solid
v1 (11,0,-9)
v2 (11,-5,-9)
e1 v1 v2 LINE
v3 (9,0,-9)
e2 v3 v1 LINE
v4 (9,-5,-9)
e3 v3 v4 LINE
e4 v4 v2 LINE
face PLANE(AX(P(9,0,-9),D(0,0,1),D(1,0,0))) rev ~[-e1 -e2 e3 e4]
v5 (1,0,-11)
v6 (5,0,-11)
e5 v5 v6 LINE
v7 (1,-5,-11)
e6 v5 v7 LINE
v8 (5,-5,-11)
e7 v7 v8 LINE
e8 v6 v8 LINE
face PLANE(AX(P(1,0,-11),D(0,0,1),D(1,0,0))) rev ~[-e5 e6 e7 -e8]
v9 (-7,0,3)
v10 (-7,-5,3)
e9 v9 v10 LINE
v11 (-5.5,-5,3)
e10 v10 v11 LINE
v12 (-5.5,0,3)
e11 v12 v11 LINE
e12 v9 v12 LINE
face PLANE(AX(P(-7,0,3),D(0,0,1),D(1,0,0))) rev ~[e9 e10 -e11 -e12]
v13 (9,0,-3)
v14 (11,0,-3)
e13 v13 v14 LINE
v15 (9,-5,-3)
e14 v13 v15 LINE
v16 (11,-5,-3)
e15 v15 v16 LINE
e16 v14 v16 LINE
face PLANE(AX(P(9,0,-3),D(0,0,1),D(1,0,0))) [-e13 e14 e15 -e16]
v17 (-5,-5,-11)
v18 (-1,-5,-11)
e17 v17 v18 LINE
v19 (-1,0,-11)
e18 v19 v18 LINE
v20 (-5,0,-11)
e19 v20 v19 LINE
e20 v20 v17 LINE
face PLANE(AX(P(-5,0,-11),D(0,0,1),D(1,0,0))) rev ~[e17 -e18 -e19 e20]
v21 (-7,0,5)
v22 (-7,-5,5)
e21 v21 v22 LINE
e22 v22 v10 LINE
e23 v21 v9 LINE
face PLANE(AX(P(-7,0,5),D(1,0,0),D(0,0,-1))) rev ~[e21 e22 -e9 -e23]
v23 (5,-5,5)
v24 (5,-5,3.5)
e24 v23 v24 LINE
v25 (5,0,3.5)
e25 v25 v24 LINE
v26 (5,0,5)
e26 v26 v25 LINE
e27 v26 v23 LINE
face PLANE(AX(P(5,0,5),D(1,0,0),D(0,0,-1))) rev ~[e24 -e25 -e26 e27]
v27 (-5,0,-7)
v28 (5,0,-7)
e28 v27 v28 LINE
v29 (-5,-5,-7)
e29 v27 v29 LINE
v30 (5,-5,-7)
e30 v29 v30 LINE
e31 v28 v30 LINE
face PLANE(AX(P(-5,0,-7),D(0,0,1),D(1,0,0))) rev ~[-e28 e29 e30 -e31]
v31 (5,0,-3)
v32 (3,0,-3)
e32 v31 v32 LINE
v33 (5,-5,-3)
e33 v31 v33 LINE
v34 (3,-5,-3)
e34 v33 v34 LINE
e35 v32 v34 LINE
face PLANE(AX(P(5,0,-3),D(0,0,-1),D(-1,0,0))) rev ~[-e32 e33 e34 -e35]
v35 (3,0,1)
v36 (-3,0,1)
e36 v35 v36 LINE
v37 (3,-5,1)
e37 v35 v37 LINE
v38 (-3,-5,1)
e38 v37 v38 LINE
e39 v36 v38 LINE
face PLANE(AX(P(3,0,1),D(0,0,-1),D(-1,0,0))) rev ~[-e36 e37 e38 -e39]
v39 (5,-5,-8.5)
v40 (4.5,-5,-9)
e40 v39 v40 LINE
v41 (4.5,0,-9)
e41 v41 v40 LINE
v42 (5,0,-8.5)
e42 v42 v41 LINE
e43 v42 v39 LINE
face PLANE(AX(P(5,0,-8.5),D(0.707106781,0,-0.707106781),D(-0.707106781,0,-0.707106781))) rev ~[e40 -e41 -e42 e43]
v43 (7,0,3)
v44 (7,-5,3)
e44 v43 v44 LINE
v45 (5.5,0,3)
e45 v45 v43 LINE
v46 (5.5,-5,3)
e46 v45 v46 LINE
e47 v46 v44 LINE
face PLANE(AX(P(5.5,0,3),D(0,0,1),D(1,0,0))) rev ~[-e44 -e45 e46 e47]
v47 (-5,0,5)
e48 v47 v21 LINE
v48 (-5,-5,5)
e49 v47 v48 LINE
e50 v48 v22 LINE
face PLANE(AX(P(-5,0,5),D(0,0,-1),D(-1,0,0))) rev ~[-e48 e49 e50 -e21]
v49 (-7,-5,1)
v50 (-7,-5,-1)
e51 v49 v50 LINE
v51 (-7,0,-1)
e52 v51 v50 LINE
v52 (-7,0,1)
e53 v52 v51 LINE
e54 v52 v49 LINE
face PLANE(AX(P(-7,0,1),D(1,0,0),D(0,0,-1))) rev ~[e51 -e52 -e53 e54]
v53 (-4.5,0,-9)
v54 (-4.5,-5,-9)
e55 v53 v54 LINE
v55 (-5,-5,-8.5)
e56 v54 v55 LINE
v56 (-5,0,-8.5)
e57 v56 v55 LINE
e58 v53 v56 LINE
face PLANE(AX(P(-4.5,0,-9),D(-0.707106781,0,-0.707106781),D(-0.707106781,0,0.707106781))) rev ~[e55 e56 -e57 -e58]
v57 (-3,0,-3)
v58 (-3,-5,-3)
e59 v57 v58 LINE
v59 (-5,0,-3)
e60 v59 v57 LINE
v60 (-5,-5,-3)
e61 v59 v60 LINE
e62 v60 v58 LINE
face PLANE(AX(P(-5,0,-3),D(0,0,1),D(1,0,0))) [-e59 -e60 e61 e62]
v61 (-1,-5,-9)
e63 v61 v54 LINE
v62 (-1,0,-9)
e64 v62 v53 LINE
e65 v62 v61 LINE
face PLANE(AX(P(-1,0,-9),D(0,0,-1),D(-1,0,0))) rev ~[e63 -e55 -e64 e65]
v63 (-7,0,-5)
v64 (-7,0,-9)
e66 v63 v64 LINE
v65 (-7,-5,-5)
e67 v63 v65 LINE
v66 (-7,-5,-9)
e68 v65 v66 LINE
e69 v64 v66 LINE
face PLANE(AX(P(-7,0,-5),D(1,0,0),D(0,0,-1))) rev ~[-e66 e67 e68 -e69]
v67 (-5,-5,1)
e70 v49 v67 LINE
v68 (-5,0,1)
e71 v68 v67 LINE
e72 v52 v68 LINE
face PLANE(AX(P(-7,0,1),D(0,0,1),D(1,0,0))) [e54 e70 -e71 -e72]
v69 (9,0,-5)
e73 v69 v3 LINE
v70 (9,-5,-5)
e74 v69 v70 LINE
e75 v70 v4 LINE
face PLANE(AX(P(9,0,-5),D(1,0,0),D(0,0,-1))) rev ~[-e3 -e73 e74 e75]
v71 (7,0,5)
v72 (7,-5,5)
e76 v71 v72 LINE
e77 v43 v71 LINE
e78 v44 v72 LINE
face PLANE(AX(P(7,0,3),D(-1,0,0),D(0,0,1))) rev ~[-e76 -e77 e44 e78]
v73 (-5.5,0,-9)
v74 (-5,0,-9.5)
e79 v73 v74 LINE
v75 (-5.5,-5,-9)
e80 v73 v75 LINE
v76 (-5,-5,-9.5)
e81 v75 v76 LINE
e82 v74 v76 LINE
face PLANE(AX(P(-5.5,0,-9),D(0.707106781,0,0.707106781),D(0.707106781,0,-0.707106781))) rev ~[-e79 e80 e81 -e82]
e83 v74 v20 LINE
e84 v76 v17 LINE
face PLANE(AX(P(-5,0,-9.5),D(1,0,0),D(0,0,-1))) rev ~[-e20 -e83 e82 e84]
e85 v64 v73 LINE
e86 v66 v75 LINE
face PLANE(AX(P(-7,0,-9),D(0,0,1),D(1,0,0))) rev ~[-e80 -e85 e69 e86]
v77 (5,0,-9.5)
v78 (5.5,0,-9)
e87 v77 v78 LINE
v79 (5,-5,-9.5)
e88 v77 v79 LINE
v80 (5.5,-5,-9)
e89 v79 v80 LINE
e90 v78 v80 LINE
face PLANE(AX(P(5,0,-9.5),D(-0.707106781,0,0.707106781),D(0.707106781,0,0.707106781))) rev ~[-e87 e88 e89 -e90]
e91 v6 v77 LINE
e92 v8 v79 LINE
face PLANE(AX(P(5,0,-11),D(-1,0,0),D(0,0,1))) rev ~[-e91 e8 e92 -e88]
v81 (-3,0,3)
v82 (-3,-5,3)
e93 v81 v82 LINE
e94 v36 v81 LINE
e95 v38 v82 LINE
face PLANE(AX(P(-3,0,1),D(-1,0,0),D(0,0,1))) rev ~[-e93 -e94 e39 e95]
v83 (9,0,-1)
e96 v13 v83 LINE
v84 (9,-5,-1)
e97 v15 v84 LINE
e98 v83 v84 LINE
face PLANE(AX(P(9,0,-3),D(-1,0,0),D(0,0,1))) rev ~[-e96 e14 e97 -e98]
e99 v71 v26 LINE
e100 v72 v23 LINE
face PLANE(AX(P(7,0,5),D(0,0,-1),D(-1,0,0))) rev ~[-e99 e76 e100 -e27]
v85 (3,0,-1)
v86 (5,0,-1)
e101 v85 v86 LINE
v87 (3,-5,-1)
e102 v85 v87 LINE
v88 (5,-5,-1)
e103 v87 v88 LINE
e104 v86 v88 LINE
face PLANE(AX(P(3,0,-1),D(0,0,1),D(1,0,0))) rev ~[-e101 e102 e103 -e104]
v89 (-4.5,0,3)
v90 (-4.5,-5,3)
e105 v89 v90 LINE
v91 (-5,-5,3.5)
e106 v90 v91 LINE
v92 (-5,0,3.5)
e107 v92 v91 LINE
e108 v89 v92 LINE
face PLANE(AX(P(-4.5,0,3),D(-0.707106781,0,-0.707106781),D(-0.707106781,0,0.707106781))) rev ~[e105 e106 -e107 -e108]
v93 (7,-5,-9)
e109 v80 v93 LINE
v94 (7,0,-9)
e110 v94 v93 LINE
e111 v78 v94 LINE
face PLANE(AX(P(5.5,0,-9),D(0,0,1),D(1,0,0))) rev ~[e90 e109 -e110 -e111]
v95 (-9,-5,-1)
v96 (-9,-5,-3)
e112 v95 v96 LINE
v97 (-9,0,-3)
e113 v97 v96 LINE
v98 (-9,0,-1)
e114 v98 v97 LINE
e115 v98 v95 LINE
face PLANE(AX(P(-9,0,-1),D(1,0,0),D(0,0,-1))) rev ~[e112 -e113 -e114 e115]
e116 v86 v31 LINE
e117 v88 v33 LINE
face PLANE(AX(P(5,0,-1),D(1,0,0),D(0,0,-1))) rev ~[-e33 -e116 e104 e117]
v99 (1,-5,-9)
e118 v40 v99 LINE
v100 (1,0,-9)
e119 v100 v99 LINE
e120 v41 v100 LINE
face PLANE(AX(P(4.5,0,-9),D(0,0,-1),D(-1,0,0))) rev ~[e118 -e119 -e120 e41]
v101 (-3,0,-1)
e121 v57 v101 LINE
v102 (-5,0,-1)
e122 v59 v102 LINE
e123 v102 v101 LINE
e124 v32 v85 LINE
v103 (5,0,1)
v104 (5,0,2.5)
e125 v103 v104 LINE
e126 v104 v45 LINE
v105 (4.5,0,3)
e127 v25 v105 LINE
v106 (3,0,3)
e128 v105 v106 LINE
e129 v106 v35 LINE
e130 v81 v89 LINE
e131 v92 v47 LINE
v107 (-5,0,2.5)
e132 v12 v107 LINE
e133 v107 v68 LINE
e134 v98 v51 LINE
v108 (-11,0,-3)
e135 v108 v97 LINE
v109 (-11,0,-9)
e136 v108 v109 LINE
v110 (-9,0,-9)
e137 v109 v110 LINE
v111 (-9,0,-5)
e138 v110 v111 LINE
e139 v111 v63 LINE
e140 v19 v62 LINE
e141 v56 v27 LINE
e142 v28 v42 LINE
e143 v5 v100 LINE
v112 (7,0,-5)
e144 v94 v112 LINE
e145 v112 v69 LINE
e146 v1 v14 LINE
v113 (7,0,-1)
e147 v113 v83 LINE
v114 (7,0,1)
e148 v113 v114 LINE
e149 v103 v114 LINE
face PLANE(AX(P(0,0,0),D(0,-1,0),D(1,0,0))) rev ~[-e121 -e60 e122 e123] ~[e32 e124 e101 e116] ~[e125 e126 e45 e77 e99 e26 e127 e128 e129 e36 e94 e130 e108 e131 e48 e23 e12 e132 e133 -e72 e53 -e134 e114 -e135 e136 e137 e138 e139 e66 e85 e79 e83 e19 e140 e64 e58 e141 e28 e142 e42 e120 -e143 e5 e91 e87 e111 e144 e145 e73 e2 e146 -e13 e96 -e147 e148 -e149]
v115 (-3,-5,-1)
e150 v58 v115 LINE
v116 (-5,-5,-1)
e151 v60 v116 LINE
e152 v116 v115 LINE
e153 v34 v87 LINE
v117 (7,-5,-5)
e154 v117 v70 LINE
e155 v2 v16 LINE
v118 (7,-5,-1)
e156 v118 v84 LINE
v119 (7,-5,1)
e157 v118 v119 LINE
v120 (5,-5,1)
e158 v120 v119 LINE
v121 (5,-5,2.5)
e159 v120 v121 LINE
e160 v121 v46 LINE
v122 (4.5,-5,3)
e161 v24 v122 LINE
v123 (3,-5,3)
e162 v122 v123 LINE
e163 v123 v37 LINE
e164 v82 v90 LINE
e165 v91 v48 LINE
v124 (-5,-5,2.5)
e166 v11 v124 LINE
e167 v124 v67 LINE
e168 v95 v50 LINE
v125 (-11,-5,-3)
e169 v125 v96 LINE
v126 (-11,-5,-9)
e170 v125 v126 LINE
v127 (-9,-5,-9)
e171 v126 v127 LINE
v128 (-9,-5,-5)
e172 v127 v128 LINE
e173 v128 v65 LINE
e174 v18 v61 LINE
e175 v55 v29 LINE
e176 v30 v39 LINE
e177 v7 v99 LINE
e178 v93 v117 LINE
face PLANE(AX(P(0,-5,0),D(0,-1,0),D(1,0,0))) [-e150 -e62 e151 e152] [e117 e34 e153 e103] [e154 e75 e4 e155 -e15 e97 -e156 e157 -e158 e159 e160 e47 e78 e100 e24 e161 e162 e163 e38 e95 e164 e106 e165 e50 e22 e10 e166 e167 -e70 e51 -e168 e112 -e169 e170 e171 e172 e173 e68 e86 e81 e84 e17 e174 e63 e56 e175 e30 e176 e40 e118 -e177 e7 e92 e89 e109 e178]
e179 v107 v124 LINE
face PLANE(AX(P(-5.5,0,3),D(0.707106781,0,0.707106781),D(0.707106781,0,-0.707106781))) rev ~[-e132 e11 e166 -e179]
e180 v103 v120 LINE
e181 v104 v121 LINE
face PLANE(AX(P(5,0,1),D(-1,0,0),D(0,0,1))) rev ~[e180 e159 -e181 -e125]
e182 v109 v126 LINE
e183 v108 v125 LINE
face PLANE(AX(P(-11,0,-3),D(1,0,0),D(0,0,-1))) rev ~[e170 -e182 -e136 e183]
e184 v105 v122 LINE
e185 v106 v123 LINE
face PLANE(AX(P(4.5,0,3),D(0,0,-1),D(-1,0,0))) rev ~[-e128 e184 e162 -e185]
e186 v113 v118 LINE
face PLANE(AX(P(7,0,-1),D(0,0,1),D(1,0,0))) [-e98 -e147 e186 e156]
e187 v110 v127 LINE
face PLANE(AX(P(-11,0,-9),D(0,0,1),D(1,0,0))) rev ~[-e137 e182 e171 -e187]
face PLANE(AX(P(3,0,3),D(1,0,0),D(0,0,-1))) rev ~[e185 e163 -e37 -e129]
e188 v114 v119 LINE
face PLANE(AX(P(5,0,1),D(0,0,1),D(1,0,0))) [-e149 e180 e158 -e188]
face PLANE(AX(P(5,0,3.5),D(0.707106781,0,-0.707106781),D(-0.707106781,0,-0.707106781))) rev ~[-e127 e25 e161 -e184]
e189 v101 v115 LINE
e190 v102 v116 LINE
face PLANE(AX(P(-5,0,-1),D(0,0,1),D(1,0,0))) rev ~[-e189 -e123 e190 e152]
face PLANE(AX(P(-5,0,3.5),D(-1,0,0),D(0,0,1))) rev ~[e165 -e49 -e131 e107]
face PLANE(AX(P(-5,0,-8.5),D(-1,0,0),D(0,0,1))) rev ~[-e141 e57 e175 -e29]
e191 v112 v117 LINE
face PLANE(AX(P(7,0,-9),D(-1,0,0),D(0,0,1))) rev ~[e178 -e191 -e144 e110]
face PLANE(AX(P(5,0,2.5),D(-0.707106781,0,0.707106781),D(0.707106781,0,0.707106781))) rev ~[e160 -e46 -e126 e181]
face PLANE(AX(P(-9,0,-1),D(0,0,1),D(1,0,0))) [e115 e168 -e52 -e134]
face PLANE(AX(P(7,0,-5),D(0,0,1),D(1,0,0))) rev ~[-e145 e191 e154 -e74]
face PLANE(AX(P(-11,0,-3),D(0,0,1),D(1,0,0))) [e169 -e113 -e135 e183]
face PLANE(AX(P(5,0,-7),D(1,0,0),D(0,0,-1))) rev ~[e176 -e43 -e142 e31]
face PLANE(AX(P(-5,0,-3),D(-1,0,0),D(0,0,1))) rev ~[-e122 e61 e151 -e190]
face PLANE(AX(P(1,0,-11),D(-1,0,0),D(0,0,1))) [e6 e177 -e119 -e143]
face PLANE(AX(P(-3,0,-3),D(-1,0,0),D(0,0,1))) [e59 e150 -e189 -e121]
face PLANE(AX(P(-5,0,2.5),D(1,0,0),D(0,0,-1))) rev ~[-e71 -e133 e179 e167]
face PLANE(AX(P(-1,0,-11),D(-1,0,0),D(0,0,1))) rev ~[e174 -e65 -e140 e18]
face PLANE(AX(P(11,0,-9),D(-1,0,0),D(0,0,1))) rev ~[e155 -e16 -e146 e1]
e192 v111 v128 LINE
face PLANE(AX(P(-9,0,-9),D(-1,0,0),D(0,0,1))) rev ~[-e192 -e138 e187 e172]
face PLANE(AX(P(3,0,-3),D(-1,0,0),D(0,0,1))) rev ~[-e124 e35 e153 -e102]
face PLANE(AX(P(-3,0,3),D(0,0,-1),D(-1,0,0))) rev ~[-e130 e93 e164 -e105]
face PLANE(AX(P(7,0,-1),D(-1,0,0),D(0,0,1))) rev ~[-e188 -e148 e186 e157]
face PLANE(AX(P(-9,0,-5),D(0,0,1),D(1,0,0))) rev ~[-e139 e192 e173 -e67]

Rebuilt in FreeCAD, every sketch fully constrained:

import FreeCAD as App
import Part
import Sketcher

V = App.Vector
Q = App.Units.Quantity


def add_polygon(sketch, points):
    """Adds a closed chain of lines whose ends are joined by coincident constraints."""
    first, n = sketch.GeometryCount, len(points)
    for a, b in zip(points, points[1:] + points[:1]):
        sketch.addGeometry(Part.LineSegment(App.Vector(*a, 0), App.Vector(*b, 0)), False)
    for i in range(n):
        sketch.addConstraint(Sketcher.Constraint("Coincident", first + i, 2, first + (i + 1) % n, 1))

doc = App.newDocument("Part")
body = doc.addObject("PartDesign::Body", "Body")

sketch1 = doc.addObject("Sketcher::SketchObject", "Sketch")
body.addObject(sketch1)
sketch1.AttachmentSupport = (doc.XZ_Plane, [""])
sketch1.MapMode = "FlatFace"
add_polygon(sketch1, [(-7, -5), (-7, -9), (-5.5, -9), (-5, -9.5), (-5, -11), (-1, -11), (-1, -9), (-4.5, -9), (-5, -8.5), (-5, -7), (5, -7), (5, -8.5), (4.5, -9), (1, -9), (1, -11), (5, -11), (5, -9.5), (5.5, -9), (7, -9), (7, -5), (9, -5), (9, -9), (11, -9), (11, -3), (9, -3), (9, -1), (7, -1), (7, 1), (5, 1), (5, 2.5), (5.5, 3), (7, 3), (7, 5), (5, 5), (5, 3.5), (4.5, 3), (3, 3), (3, 1), (-3, 1), (-3, 3), (-4.5, 3), (-5, 3.5), (-5, 5), (-7, 5), (-7, 3), (-5.5, 3), (-5, 2.5), (-5, 1), (-7, 1), (-7, -1), (-9, -1), (-9, -3), (-11, -3), (-11, -9), (-9, -9), (-9, -5)])
add_polygon(sketch1, [(-3, -3), (-5, -3), (-5, -1), (-3, -1)])
add_polygon(sketch1, [(3, -1), (5, -1), (5, -3), (3, -3)])
sketch1.addConstraint([
    Sketcher.Constraint("Vertical", 0),
    Sketcher.Constraint("Horizontal", 1),
    Sketcher.Constraint("Vertical", 3),
    Sketcher.Constraint("Horizontal", 4),
    Sketcher.Constraint("Vertical", 5),
    Sketcher.Constraint("Horizontal", 6),
    Sketcher.Constraint("Vertical", 8),
    Sketcher.Constraint("Horizontal", 9),
    Sketcher.Constraint("Vertical", 10),
    Sketcher.Constraint("Horizontal", 12),
    Sketcher.Constraint("Vertical", 13),
    Sketcher.Constraint("Horizontal", 14),
    Sketcher.Constraint("Vertical", 15),
    Sketcher.Constraint("Horizontal", 17),
    Sketcher.Constraint("Vertical", 18),
    Sketcher.Constraint("Horizontal", 19),
    Sketcher.Constraint("Vertical", 20),
    Sketcher.Constraint("Horizontal", 21),
    Sketcher.Constraint("Vertical", 22),
    Sketcher.Constraint("Horizontal", 23),
    Sketcher.Constraint("Vertical", 24),
    Sketcher.Constraint("Horizontal", 25),
    Sketcher.Constraint("Vertical", 26),
    Sketcher.Constraint("Horizontal", 27),
    Sketcher.Constraint("Vertical", 28),
    Sketcher.Constraint("Horizontal", 30),
    Sketcher.Constraint("Vertical", 31),
    Sketcher.Constraint("Horizontal", 32),
    Sketcher.Constraint("Vertical", 33),
    Sketcher.Constraint("Horizontal", 35),
    Sketcher.Constraint("Vertical", 36),
    Sketcher.Constraint("Horizontal", 37),
    Sketcher.Constraint("Vertical", 38),
    Sketcher.Constraint("Horizontal", 39),
    Sketcher.Constraint("Vertical", 41),
    Sketcher.Constraint("Horizontal", 42),
    Sketcher.Constraint("Vertical", 43),
    Sketcher.Constraint("Horizontal", 44),
    Sketcher.Constraint("Vertical", 46),
    Sketcher.Constraint("Horizontal", 47),
    Sketcher.Constraint("Vertical", 48),
    Sketcher.Constraint("Horizontal", 49),
    Sketcher.Constraint("Vertical", 50),
    Sketcher.Constraint("Horizontal", 51),
    Sketcher.Constraint("Vertical", 52),
    Sketcher.Constraint("Horizontal", 53),
    Sketcher.Constraint("Vertical", 54),
    Sketcher.Constraint("Horizontal", 55),
    Sketcher.Constraint("Horizontal", 56),
    Sketcher.Constraint("Vertical", 57),
    Sketcher.Constraint("Horizontal", 58),
    Sketcher.Constraint("Vertical", 59),
    Sketcher.Constraint("Horizontal", 60),
    Sketcher.Constraint("Vertical", 61),
    Sketcher.Constraint("Horizontal", 62),
    Sketcher.Constraint("Vertical", 63),
    Sketcher.Constraint("Symmetric", 18, 2, 42, 2, -1, 1),
    Sketcher.Constraint("Symmetric", 25, 2, 47, 2, -1, 1),
    Sketcher.Constraint("Symmetric", 31, 2, 55, 2, -1, 1),
    Sketcher.Constraint("Symmetric", 27, 2, 57, 2, -1, 1),
    Sketcher.Constraint("Symmetric", 36, 2, 58, 2, -1, 1),
    Sketcher.Constraint("Symmetric", 46, 2, 60, 2, -1, 1),
    Sketcher.Constraint("Symmetric", 38, 2, 62, 2, -1, 1),
    Sketcher.Constraint("Symmetric", 7, 2, 10, 2, -2),
    Sketcher.Constraint("Symmetric", 6, 2, 11, 2, -2),
    Sketcher.Constraint("Symmetric", 4, 2, 13, 2, -2),
    Sketcher.Constraint("Symmetric", 2, 2, 15, 2, -2),
    Sketcher.Constraint("Symmetric", 1, 2, 16, 2, -2),
    Sketcher.Constraint("Symmetric", 35, 2, 38, 2, -2),
    Sketcher.Constraint("Symmetric", 33, 2, 40, 2, -2),
    Sketcher.Constraint("Symmetric", 31, 2, 42, 2, -2),
    Sketcher.Constraint("Symmetric", 29, 2, 44, 2, -2),
    Sketcher.Constraint("Symmetric", 28, 2, 45, 2, -2),
    Sketcher.Constraint("Symmetric", 24, 2, 49, 2, -2),
    Sketcher.Constraint("Symmetric", 22, 2, 51, 2, -2),
    Sketcher.Constraint("Symmetric", 20, 2, 53, 2, -2),
    Sketcher.Constraint("Parallel", 2, 7),
    Sketcher.Constraint("Perpendicular", 7, 11),
    Sketcher.Constraint("Parallel", 16, 29),
    Sketcher.Constraint("Parallel", 29, 34),
    Sketcher.Constraint("Perpendicular", 34, 40),
    Sketcher.Constraint("Horizontal", 1, 2, 5, 2),
    Sketcher.Constraint("Horizontal", 17, 2, 20, 2),
    Sketcher.Constraint("Horizontal", 30, 2, 34, 2),
    Sketcher.Constraint("Horizontal", 37, 2, 46, 2),
    Sketcher.Constraint("Horizontal", 51, 2, 56, 2),
    Sketcher.Constraint("Horizontal", 59, 2, 61, 2),
    Sketcher.Constraint("Vertical", 3, 2, 7, 2),
    Sketcher.Constraint("Vertical", 20, 2, 23, 2),
    Sketcher.Constraint("Vertical", 18, 2, 25, 2),
    Sketcher.Constraint("Vertical", 15, 2, 27, 2),
    Sketcher.Constraint("Vertical", 16, 2, 29, 2),
    Sketcher.Constraint("Vertical", 28, 2, 32, 2),
    Sketcher.Constraint("Vertical", 11, 2, 34, 2),
    Sketcher.Constraint("Equal", 19, 21),
    Sketcher.Constraint("Equal", 25, 27),
    Sketcher.Constraint("Equal", 30, 35),
    Sketcher.Constraint("Equal", 55, 56),
    Sketcher.Constraint("Equal", 14, 0),
    Sketcher.Constraint("Equal", 44, 3),
    Sketcher.Constraint("Equal", 3, 8),
    Sketcher.Constraint("Equal", 37, 22),
    Sketcher.Constraint("Equal", 13, 24),
    Sketcher.Constraint("Equal", 24, 26),
    Sketcher.Constraint("Equal", 26, 31),
    Sketcher.Constraint("DistanceX", 4, 1, 4, 2, Q("4 mm")),
    Sketcher.Constraint("DistanceX", 9, 1, 9, 2, Q("10 mm")),
    Sketcher.Constraint("DistanceX", 1, 1, 1, 2, Q("1.5 mm")),
])
pad1 = doc.addObject("PartDesign::Pad", "Pad")
body.addObject(pad1)
pad1.Profile = sketch1
pad1.Length = 5

doc.recompute()
